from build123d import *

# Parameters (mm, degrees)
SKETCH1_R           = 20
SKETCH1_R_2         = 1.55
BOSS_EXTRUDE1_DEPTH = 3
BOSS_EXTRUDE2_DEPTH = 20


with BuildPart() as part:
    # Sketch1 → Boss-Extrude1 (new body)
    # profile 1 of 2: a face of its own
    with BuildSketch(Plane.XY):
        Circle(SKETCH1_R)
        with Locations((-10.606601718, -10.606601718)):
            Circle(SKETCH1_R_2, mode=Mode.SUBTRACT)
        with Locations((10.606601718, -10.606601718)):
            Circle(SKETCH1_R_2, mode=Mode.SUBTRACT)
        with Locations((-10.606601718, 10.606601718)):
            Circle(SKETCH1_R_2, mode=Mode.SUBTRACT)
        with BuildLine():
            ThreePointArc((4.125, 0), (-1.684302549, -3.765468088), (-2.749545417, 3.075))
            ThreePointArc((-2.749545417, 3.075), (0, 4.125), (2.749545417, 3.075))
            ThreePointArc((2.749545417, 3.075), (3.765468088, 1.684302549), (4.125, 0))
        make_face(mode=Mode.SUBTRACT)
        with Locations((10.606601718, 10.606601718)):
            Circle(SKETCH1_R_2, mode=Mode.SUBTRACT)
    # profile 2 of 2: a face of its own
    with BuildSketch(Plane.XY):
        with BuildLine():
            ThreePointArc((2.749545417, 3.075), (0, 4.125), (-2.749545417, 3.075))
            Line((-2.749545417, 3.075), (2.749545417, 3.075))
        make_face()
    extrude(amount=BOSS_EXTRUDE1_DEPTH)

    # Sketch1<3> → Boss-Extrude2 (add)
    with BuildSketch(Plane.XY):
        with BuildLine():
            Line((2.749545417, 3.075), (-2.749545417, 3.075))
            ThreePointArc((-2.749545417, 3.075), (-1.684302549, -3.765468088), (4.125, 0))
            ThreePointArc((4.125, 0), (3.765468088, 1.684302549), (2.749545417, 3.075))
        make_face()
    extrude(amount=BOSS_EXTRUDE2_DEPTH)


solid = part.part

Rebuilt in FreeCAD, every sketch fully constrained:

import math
import FreeCAD as App
import Part
import Sketcher
from FreeCAD import Vector

doc = App.newDocument("Part")
body = doc.addObject("PartDesign::Body", "Body")

# Sketch on XY plane
sketch1 = body.newObject("Sketcher::SketchObject", "Sketch")
sketch1.AttachmentSupport = (doc.getObject("XY_Plane"), [""])
sketch1.MapMode = "FlatFace"
sketch1.addGeometry([
    Part.Circle(Vector(0, 0, 0), Vector(0, 0, 1), 20),  # 0
    Part.Circle(Vector(-10.606602, -10.606602, 0), Vector(0, 0, 1), 1.55),  # 1
    Part.Circle(Vector(10.606602, -10.606602, 0), Vector(0, 0, 1), 1.55),  # 2
    Part.Circle(Vector(-10.606602, 10.606602, 0), Vector(0, 0, 1), 1.55),  # 3
    Part.ArcOfCircle(Part.Circle(Vector(0, 0, 0), Vector(0, 0, 1), 4.125), math.radians(0), math.radians(48.198156)),  # 4
    Part.ArcOfCircle(Part.Circle(Vector(0, 0, 0), Vector(0, 0, 1), 4.125), math.radians(131.801844), math.radians(360)),  # 5
    Part.LineSegment(Vector(-2.749545, 3.075, 0), Vector(2.749545, 3.075, 0)),  # 6
    Part.Circle(Vector(10.606602, 10.606602, 0), Vector(0, 0, 1), 1.55),  # 7
], False)
sketch1.addConstraint([
    Sketcher.Constraint("Tangent", 4, 1, 5, 2),
    Sketcher.Constraint("Coincident", 5, 1, 6, 1),
    Sketcher.Constraint("Coincident", 6, 2, 4, 2),
    Sketcher.Constraint("Horizontal", 6),
    Sketcher.Constraint("Coincident", 0, 3, -1, 1),
    Sketcher.Constraint("Coincident", 4, 3, -1, 1),
    Sketcher.Constraint("Equal", 1, 2),
    Sketcher.Constraint("Equal", 2, 3),
    Sketcher.Constraint("Equal", 4, 5),
    Sketcher.Constraint("Equal", 3, 7),
    Sketcher.Constraint("Symmetric", 2, 3, 3, 3, -1, 1),
    Sketcher.Constraint("Symmetric", 1, 3, 7, 3, -1, 1),
    Sketcher.Constraint("Symmetric", 1, 3, 2, 3, -2),
    Sketcher.Constraint("PointOnObject", 4, 1, -1),
    Sketcher.Constraint("Diameter", 0, 40.0),
    Sketcher.Constraint("Diameter", 1, 3.1),
    Sketcher.Constraint("Radius", 4, 4.125),
    Sketcher.Constraint("DistanceY", -1, 1, 5, 1, 3.075),
    Sketcher.Constraint("DistanceX", 1, 3, -1, 1, 10.606602),
    Sketcher.Constraint("DistanceY", 1, 3, -1, 1, 10.606602),
])
pad1 = body.newObject("PartDesign::Pad", "Pad")
pad1.Profile = sketch1
pad1.Length = 3

# Sketch on XY plane
sketch2 = body.newObject("Sketcher::SketchObject", "Sketch001")
sketch2.AttachmentSupport = (doc.getObject("XY_Plane"), [""])
sketch2.MapMode = "FlatFace"
sketch2.addGeometry([
    Part.LineSegment(Vector(2.749545, 3.075, 0), Vector(-2.749545, 3.075, 0)),
    Part.ArcOfCircle(Part.Circle(Vector(0, 0, 0), Vector(0, 0, 1), 4.125), math.radians(131.801844), math.radians(360)),
    Part.ArcOfCircle(Part.Circle(Vector(0, 0, 0), Vector(0, 0, 1), 4.125), math.radians(0), math.radians(48.198156)),
], False)
sketch2.addConstraint([
    Sketcher.Constraint("Coincident", 0, 2, 1, 1),
    Sketcher.Constraint("Tangent", 1, 2, 2, 1),
    Sketcher.Constraint("Coincident", 2, 2, 0, 1),
    Sketcher.Constraint("Horizontal", 0),
    Sketcher.Constraint("Coincident", 1, 3, -1, 1),
    Sketcher.Constraint("Equal", 1, 2),
    Sketcher.Constraint("PointOnObject", 1, 2, -1),
    Sketcher.Constraint("Radius", 1, 4.125),
    Sketcher.Constraint("DistanceY", -1, 1, 0, 2, 3.075),
])
pad2 = body.newObject("PartDesign::Pad", "Pad001")
pad2.Profile = sketch2
pad2.Length = 20

doc.recompute()
